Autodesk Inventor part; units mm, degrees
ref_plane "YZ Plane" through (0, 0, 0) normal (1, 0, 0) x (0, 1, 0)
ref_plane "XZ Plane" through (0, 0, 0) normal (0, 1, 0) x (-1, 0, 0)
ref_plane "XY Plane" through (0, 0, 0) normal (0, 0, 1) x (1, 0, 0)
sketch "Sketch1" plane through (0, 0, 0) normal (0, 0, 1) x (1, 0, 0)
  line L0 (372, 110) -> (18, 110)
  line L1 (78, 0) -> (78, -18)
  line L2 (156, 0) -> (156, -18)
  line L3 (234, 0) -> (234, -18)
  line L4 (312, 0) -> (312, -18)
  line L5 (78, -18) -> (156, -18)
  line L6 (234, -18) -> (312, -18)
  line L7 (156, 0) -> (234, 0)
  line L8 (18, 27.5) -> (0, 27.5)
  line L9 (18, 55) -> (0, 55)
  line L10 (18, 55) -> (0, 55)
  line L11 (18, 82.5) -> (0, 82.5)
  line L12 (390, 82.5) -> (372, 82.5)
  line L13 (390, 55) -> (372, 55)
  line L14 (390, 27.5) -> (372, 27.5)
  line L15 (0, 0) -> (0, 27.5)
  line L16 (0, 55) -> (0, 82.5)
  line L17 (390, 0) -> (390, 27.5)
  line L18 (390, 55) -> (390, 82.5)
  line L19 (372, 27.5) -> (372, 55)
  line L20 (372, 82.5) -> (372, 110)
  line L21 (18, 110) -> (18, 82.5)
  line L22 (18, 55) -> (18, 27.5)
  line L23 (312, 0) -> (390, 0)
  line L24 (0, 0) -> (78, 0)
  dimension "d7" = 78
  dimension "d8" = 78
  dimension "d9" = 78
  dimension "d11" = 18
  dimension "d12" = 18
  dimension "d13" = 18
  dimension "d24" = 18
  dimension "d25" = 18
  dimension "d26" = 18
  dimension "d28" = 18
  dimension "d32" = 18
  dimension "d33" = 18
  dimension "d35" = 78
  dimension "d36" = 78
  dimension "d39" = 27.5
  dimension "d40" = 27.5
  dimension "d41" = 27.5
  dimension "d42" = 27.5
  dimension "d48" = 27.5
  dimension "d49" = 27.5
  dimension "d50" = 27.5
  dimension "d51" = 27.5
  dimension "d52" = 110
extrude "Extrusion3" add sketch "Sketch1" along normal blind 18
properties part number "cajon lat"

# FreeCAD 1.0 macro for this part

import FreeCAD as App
import Part
import Sketcher
from FreeCAD import Vector


def add_polygon(sketch, points):
    """Adds a closed chain of lines whose ends are joined by coincident constraints."""
    first, n = sketch.GeometryCount, len(points)
    for a, b in zip(points, points[1:] + points[:1]):
        sketch.addGeometry(Part.LineSegment(App.Vector(*a, 0), App.Vector(*b, 0)), False)
    for i in range(n):
        sketch.addConstraint(Sketcher.Constraint("Coincident", first + i, 2, first + (i + 1) % n, 1))

doc = App.newDocument("Part")
body = doc.addObject("PartDesign::Body", "Body")

# Sketch on XY plane
sketch1 = body.newObject("Sketcher::SketchObject", "Sketch")
sketch1.AttachmentSupport = (doc.getObject("XY_Plane"), [""])
sketch1.MapMode = "FlatFace"
add_polygon(sketch1, [(372, 82), (372, 110), (18, 110), (18, 82), (0, 82), (0, 55), (18, 55), (18, 28), (0, 28), (0, 0), (78, 0), (78, -18), (156, -18), (156, 0), (234, 0), (234, -18), (312, -18), (312, 0), (390, 0), (390, 28), (372, 28), (372, 55), (390, 55), (390, 82)])  # lines 0-23
sketch1.addConstraint([
    Sketcher.Constraint("Vertical", 0),
    Sketcher.Constraint("Horizontal", 1),
    Sketcher.Constraint("Vertical", 2),
    Sketcher.Constraint("Horizontal", 3),
    Sketcher.Constraint("Vertical", 4),
    Sketcher.Constraint("Horizontal", 5),
    Sketcher.Constraint("Vertical", 6),
    Sketcher.Constraint("Horizontal", 7),
    Sketcher.Constraint("Vertical", 8),
    Sketcher.Constraint("Horizontal", 9),
    Sketcher.Constraint("Vertical", 10),
    Sketcher.Constraint("Horizontal", 11),
    Sketcher.Constraint("Vertical", 12),
    Sketcher.Constraint("Horizontal", 13),
    Sketcher.Constraint("Vertical", 14),
    Sketcher.Constraint("Horizontal", 15),
    Sketcher.Constraint("Vertical", 16),
    Sketcher.Constraint("Horizontal", 17),
    Sketcher.Constraint("Vertical", 18),
    Sketcher.Constraint("Horizontal", 19),
    Sketcher.Constraint("Vertical", 20),
    Sketcher.Constraint("Horizontal", 21),
    Sketcher.Constraint("Vertical", 22),
    Sketcher.Constraint("Horizontal", 23),
    Sketcher.Constraint("Coincident", 8, 2, -1, 1),
    Sketcher.Constraint("PointOnObject", 3, 2, -2),
    Sketcher.Constraint("PointOnObject", 12, 2, -1),
    Sketcher.Constraint("PointOnObject", 16, 2, -1),
    Sketcher.Constraint("Horizontal", 11, 2, 14, 2),
    Sketcher.Constraint("Horizontal", 7, 2, 18, 2),
    Sketcher.Constraint("Horizontal", 5, 2, 20, 2),
    Sketcher.Constraint("Horizontal", 3, 2, 22, 2),
    Sketcher.Constraint("Vertical", 2, 2, 5, 2),
    Sketcher.Constraint("Vertical", 0, 2, 19, 2),
    Sketcher.Constraint("Vertical", 18, 2, 21, 2),
    Sketcher.Constraint("Equal", 9, 11),
    Sketcher.Constraint("Equal", 11, 13),
    Sketcher.Constraint("Equal", 13, 15),
    Sketcher.Constraint("Equal", 15, 17),
    Sketcher.Constraint("Equal", 7, 19),
    Sketcher.Constraint("Equal", 2, 4),
    Sketcher.Constraint("Equal", 4, 6),
    Sketcher.Constraint("Equal", 6, 8),
    Sketcher.Constraint("Equal", 23, 10),
    Sketcher.Constraint("DistanceX", 3, 2, 3, 1, 18.0),
    Sketcher.Constraint("DistanceX", 9, 1, 9, 2, 78.0),
    Sketcher.Constraint("DistanceY", 0, 1, 0, 2, 27.5),
])
pad1 = body.newObject("PartDesign::Pad", "Pad")
pad1.Profile = sketch1
pad1.Length = 18

doc.recompute()
